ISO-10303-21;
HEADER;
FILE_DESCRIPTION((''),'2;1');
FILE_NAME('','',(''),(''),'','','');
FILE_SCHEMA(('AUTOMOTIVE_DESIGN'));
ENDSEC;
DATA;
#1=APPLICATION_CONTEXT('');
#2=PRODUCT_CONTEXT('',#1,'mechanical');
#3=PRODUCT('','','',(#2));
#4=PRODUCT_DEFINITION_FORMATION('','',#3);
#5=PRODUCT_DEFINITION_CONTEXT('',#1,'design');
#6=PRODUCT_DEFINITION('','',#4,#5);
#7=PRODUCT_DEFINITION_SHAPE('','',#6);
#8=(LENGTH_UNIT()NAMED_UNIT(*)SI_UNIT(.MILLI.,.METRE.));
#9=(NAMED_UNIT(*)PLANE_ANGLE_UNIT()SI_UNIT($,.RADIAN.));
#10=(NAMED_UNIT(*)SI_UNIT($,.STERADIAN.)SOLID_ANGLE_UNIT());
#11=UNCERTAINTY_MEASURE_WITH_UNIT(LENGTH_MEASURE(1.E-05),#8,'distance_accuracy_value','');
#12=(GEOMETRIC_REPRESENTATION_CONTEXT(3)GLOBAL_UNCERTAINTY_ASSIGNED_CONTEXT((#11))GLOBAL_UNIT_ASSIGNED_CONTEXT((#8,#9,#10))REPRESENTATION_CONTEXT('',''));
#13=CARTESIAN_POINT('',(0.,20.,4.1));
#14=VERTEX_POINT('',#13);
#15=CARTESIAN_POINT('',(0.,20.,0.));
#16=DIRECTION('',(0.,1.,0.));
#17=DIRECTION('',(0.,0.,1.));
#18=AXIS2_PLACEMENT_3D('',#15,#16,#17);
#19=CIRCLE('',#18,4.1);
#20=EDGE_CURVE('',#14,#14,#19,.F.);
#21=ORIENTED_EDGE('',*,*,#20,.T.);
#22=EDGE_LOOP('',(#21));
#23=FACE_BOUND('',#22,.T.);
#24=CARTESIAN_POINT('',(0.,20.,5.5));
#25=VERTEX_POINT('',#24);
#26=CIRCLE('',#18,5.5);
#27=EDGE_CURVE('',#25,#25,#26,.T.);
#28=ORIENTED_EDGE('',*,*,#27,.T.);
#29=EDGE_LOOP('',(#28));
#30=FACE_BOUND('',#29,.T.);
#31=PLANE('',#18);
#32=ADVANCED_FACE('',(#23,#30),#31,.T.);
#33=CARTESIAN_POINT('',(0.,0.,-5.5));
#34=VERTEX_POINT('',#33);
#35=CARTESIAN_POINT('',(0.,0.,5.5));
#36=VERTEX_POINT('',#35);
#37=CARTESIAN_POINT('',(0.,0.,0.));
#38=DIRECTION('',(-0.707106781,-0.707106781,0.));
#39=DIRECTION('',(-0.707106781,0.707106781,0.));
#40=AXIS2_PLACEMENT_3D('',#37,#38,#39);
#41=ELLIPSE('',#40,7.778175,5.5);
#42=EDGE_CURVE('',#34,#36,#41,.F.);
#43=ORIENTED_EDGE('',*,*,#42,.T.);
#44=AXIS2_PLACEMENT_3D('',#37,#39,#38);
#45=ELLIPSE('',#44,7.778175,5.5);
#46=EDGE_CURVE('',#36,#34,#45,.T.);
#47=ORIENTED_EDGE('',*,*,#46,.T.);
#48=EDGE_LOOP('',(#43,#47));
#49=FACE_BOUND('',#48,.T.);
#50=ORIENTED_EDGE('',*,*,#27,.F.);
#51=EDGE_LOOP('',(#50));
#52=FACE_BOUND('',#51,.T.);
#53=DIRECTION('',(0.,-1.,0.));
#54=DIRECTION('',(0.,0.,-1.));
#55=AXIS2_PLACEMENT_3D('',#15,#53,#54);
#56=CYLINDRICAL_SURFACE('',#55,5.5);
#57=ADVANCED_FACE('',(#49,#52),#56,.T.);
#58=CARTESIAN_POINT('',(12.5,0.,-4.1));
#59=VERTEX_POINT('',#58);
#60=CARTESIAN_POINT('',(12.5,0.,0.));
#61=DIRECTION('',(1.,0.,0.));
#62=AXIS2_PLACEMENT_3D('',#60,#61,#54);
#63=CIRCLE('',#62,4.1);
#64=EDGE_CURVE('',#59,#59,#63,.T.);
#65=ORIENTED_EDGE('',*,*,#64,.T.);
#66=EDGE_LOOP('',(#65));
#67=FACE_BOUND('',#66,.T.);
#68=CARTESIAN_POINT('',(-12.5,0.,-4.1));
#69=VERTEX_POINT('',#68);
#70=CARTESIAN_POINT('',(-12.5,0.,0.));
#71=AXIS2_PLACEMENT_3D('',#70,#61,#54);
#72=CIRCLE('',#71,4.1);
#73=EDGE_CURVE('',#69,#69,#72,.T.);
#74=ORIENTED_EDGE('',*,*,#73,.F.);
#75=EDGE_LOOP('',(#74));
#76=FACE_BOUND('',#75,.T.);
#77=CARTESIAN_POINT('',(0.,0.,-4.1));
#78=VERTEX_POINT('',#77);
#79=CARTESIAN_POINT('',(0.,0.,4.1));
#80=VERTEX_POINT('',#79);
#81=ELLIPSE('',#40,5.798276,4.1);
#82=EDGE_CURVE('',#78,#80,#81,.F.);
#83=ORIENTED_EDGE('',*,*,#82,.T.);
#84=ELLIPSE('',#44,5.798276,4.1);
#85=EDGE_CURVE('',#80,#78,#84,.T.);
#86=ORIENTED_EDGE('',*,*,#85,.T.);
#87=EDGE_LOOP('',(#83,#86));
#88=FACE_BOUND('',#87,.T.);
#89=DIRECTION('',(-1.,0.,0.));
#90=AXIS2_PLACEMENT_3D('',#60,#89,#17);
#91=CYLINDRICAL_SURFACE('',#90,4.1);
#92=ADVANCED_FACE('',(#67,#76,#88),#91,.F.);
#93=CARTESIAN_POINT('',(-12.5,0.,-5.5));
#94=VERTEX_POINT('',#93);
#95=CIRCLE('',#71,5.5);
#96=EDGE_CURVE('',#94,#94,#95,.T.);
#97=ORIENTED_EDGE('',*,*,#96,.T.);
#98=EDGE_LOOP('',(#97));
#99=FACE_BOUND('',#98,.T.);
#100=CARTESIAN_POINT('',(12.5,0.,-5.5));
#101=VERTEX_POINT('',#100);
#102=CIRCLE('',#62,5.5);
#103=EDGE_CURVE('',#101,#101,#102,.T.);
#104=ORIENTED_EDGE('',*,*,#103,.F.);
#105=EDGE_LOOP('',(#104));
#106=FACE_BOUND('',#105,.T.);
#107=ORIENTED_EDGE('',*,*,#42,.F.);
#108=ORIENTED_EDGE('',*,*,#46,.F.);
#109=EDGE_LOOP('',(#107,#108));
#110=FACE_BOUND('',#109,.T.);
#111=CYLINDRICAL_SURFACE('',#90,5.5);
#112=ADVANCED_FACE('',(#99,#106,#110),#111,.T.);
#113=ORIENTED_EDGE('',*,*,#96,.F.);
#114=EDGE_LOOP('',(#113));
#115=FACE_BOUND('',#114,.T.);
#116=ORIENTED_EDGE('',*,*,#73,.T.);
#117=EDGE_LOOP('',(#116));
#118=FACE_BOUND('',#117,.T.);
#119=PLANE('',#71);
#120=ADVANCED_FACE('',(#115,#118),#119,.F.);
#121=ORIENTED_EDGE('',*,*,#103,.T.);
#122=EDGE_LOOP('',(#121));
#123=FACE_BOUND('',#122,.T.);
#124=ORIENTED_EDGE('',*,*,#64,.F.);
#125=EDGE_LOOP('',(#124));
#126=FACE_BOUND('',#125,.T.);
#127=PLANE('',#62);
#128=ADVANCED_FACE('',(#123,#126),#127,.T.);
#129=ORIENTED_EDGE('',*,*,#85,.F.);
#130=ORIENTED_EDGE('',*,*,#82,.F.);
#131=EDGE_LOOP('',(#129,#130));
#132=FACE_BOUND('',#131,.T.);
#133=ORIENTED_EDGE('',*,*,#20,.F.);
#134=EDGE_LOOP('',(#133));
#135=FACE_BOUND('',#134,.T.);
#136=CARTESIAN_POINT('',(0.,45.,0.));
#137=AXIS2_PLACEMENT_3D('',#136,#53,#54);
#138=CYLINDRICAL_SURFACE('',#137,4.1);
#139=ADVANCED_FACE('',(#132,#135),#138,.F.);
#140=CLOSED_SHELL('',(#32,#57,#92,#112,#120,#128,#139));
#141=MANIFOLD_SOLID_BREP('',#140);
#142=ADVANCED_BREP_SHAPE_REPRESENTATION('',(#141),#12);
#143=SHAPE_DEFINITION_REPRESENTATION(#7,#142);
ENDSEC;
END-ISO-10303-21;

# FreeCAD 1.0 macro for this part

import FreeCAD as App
import Part
import Sketcher

V = App.Vector

doc = App.newDocument("Part")
params = doc.addObject("Spreadsheet::Sheet", "Params")
for row, (alias, value) in enumerate([
    ("sketch1_diameter", "11 mm"),
    ("sketch1_diameter2", "8.2 mm"),
    ("pad1_length", "25 mm"),
    ("sketch2_diameter", "11 mm"),
    ("pad2_length", "20 mm"),
    ("sketch3_diameter", "8.2 mm"),
    ("pocket1_length", "45 mm"),
    ("sketch4_diameter", "8.2 mm"),
    ("pocket2_length", "45 mm"),
], start=1):
    params.set(f"A{row}", alias)
    params.set(f"B{row}", "=" + value)
    params.setAlias(f"B{row}", alias)

body = doc.addObject("PartDesign::Body", "Body")

# Sketch on YZ plane
sketch1 = body.newObject("Sketcher::SketchObject", "Sketch")
sketch1.AttachmentSupport = (doc.getObject("YZ_Plane"), [""])
sketch1.MapMode = "FlatFace"
sketch1.addGeometry(Part.Circle(V(0, 0, 0), V(0, 0, 1), 5.5), False)
sketch1.addGeometry(Part.Circle(V(0, 0, 0), V(0, 0, 1), 4.1), False)
sketch1.addConstraint(Sketcher.Constraint("Coincident", 0, 3, -1, 1))
sketch1.addConstraint(Sketcher.Constraint("Coincident", 1, 3, -1, 1))
sketch1.addConstraint(Sketcher.Constraint("Diameter", 0, 11.0))
sketch1.addConstraint(Sketcher.Constraint("Diameter", 1, 8.2))
sketch1.setExpression("Constraints[2]", "Params.sketch1_diameter")
sketch1.setExpression("Constraints[3]", "Params.sketch1_diameter2")
pad1 = body.newObject("PartDesign::Pad", "Pad")
pad1.Profile = sketch1
pad1.setExpression("Length", "Params.pad1_length")
pad1.Midplane = True

# Sketch on XZ plane
sketch2 = body.newObject("Sketcher::SketchObject", "Sketch001")
sketch2.AttachmentSupport = (doc.getObject("XZ_Plane"), [""])
sketch2.MapMode = "FlatFace"
sketch2.addGeometry(Part.Circle(V(0, 0, 0), V(0, 0, 1), 6), False)
sketch2.addConstraint(Sketcher.Constraint("Coincident", 0, 3, -1, 1))
sketch2.addConstraint(Sketcher.Constraint("Diameter", 0, 11.0))
sketch2.setExpression("Constraints[1]", "Params.sketch2_diameter")
pad2 = body.newObject("PartDesign::Pad", "Pad001")
pad2.Profile = sketch2
pad2.setExpression("Length", "Params.pad2_length")
pad2.Reversed = True

# Sketch on YZ plane
sketch3 = body.newObject("Sketcher::SketchObject", "Sketch002")
sketch3.AttachmentSupport = (doc.getObject("YZ_Plane"), [""])
sketch3.MapMode = "FlatFace"
sketch3.addGeometry(Part.Circle(V(0, 0, 0), V(0, 0, 1), 4.1), False)
sketch3.addConstraint(Sketcher.Constraint("Coincident", 0, 3, -1, 1))
sketch3.addConstraint(Sketcher.Constraint("Diameter", 0, 8.2))
sketch3.setExpression("Constraints[1]", "Params.sketch3_diameter")
pocket1 = body.newObject("PartDesign::Pocket", "Pocket")
pocket1.Profile = sketch3
pocket1.setExpression("Length", "Params.pocket1_length")
pocket1.Midplane = True

# Sketch on XZ plane
sketch4 = body.newObject("Sketcher::SketchObject", "Sketch003")
sketch4.AttachmentSupport = (doc.getObject("XZ_Plane"), [""])
sketch4.MapMode = "FlatFace"
sketch4.addGeometry(Part.Circle(V(0, 0, 0), V(0, 0, 1), 4.1), False)
sketch4.addConstraint(Sketcher.Constraint("Coincident", 0, 3, -1, 1))
sketch4.addConstraint(Sketcher.Constraint("Diameter", 0, 8.2))
sketch4.setExpression("Constraints[1]", "Params.sketch4_diameter")
pocket2 = body.newObject("PartDesign::Pocket", "Pocket001")
pocket2.Profile = sketch4
pocket2.setExpression("Length", "Params.pocket2_length")

doc.recompute()
